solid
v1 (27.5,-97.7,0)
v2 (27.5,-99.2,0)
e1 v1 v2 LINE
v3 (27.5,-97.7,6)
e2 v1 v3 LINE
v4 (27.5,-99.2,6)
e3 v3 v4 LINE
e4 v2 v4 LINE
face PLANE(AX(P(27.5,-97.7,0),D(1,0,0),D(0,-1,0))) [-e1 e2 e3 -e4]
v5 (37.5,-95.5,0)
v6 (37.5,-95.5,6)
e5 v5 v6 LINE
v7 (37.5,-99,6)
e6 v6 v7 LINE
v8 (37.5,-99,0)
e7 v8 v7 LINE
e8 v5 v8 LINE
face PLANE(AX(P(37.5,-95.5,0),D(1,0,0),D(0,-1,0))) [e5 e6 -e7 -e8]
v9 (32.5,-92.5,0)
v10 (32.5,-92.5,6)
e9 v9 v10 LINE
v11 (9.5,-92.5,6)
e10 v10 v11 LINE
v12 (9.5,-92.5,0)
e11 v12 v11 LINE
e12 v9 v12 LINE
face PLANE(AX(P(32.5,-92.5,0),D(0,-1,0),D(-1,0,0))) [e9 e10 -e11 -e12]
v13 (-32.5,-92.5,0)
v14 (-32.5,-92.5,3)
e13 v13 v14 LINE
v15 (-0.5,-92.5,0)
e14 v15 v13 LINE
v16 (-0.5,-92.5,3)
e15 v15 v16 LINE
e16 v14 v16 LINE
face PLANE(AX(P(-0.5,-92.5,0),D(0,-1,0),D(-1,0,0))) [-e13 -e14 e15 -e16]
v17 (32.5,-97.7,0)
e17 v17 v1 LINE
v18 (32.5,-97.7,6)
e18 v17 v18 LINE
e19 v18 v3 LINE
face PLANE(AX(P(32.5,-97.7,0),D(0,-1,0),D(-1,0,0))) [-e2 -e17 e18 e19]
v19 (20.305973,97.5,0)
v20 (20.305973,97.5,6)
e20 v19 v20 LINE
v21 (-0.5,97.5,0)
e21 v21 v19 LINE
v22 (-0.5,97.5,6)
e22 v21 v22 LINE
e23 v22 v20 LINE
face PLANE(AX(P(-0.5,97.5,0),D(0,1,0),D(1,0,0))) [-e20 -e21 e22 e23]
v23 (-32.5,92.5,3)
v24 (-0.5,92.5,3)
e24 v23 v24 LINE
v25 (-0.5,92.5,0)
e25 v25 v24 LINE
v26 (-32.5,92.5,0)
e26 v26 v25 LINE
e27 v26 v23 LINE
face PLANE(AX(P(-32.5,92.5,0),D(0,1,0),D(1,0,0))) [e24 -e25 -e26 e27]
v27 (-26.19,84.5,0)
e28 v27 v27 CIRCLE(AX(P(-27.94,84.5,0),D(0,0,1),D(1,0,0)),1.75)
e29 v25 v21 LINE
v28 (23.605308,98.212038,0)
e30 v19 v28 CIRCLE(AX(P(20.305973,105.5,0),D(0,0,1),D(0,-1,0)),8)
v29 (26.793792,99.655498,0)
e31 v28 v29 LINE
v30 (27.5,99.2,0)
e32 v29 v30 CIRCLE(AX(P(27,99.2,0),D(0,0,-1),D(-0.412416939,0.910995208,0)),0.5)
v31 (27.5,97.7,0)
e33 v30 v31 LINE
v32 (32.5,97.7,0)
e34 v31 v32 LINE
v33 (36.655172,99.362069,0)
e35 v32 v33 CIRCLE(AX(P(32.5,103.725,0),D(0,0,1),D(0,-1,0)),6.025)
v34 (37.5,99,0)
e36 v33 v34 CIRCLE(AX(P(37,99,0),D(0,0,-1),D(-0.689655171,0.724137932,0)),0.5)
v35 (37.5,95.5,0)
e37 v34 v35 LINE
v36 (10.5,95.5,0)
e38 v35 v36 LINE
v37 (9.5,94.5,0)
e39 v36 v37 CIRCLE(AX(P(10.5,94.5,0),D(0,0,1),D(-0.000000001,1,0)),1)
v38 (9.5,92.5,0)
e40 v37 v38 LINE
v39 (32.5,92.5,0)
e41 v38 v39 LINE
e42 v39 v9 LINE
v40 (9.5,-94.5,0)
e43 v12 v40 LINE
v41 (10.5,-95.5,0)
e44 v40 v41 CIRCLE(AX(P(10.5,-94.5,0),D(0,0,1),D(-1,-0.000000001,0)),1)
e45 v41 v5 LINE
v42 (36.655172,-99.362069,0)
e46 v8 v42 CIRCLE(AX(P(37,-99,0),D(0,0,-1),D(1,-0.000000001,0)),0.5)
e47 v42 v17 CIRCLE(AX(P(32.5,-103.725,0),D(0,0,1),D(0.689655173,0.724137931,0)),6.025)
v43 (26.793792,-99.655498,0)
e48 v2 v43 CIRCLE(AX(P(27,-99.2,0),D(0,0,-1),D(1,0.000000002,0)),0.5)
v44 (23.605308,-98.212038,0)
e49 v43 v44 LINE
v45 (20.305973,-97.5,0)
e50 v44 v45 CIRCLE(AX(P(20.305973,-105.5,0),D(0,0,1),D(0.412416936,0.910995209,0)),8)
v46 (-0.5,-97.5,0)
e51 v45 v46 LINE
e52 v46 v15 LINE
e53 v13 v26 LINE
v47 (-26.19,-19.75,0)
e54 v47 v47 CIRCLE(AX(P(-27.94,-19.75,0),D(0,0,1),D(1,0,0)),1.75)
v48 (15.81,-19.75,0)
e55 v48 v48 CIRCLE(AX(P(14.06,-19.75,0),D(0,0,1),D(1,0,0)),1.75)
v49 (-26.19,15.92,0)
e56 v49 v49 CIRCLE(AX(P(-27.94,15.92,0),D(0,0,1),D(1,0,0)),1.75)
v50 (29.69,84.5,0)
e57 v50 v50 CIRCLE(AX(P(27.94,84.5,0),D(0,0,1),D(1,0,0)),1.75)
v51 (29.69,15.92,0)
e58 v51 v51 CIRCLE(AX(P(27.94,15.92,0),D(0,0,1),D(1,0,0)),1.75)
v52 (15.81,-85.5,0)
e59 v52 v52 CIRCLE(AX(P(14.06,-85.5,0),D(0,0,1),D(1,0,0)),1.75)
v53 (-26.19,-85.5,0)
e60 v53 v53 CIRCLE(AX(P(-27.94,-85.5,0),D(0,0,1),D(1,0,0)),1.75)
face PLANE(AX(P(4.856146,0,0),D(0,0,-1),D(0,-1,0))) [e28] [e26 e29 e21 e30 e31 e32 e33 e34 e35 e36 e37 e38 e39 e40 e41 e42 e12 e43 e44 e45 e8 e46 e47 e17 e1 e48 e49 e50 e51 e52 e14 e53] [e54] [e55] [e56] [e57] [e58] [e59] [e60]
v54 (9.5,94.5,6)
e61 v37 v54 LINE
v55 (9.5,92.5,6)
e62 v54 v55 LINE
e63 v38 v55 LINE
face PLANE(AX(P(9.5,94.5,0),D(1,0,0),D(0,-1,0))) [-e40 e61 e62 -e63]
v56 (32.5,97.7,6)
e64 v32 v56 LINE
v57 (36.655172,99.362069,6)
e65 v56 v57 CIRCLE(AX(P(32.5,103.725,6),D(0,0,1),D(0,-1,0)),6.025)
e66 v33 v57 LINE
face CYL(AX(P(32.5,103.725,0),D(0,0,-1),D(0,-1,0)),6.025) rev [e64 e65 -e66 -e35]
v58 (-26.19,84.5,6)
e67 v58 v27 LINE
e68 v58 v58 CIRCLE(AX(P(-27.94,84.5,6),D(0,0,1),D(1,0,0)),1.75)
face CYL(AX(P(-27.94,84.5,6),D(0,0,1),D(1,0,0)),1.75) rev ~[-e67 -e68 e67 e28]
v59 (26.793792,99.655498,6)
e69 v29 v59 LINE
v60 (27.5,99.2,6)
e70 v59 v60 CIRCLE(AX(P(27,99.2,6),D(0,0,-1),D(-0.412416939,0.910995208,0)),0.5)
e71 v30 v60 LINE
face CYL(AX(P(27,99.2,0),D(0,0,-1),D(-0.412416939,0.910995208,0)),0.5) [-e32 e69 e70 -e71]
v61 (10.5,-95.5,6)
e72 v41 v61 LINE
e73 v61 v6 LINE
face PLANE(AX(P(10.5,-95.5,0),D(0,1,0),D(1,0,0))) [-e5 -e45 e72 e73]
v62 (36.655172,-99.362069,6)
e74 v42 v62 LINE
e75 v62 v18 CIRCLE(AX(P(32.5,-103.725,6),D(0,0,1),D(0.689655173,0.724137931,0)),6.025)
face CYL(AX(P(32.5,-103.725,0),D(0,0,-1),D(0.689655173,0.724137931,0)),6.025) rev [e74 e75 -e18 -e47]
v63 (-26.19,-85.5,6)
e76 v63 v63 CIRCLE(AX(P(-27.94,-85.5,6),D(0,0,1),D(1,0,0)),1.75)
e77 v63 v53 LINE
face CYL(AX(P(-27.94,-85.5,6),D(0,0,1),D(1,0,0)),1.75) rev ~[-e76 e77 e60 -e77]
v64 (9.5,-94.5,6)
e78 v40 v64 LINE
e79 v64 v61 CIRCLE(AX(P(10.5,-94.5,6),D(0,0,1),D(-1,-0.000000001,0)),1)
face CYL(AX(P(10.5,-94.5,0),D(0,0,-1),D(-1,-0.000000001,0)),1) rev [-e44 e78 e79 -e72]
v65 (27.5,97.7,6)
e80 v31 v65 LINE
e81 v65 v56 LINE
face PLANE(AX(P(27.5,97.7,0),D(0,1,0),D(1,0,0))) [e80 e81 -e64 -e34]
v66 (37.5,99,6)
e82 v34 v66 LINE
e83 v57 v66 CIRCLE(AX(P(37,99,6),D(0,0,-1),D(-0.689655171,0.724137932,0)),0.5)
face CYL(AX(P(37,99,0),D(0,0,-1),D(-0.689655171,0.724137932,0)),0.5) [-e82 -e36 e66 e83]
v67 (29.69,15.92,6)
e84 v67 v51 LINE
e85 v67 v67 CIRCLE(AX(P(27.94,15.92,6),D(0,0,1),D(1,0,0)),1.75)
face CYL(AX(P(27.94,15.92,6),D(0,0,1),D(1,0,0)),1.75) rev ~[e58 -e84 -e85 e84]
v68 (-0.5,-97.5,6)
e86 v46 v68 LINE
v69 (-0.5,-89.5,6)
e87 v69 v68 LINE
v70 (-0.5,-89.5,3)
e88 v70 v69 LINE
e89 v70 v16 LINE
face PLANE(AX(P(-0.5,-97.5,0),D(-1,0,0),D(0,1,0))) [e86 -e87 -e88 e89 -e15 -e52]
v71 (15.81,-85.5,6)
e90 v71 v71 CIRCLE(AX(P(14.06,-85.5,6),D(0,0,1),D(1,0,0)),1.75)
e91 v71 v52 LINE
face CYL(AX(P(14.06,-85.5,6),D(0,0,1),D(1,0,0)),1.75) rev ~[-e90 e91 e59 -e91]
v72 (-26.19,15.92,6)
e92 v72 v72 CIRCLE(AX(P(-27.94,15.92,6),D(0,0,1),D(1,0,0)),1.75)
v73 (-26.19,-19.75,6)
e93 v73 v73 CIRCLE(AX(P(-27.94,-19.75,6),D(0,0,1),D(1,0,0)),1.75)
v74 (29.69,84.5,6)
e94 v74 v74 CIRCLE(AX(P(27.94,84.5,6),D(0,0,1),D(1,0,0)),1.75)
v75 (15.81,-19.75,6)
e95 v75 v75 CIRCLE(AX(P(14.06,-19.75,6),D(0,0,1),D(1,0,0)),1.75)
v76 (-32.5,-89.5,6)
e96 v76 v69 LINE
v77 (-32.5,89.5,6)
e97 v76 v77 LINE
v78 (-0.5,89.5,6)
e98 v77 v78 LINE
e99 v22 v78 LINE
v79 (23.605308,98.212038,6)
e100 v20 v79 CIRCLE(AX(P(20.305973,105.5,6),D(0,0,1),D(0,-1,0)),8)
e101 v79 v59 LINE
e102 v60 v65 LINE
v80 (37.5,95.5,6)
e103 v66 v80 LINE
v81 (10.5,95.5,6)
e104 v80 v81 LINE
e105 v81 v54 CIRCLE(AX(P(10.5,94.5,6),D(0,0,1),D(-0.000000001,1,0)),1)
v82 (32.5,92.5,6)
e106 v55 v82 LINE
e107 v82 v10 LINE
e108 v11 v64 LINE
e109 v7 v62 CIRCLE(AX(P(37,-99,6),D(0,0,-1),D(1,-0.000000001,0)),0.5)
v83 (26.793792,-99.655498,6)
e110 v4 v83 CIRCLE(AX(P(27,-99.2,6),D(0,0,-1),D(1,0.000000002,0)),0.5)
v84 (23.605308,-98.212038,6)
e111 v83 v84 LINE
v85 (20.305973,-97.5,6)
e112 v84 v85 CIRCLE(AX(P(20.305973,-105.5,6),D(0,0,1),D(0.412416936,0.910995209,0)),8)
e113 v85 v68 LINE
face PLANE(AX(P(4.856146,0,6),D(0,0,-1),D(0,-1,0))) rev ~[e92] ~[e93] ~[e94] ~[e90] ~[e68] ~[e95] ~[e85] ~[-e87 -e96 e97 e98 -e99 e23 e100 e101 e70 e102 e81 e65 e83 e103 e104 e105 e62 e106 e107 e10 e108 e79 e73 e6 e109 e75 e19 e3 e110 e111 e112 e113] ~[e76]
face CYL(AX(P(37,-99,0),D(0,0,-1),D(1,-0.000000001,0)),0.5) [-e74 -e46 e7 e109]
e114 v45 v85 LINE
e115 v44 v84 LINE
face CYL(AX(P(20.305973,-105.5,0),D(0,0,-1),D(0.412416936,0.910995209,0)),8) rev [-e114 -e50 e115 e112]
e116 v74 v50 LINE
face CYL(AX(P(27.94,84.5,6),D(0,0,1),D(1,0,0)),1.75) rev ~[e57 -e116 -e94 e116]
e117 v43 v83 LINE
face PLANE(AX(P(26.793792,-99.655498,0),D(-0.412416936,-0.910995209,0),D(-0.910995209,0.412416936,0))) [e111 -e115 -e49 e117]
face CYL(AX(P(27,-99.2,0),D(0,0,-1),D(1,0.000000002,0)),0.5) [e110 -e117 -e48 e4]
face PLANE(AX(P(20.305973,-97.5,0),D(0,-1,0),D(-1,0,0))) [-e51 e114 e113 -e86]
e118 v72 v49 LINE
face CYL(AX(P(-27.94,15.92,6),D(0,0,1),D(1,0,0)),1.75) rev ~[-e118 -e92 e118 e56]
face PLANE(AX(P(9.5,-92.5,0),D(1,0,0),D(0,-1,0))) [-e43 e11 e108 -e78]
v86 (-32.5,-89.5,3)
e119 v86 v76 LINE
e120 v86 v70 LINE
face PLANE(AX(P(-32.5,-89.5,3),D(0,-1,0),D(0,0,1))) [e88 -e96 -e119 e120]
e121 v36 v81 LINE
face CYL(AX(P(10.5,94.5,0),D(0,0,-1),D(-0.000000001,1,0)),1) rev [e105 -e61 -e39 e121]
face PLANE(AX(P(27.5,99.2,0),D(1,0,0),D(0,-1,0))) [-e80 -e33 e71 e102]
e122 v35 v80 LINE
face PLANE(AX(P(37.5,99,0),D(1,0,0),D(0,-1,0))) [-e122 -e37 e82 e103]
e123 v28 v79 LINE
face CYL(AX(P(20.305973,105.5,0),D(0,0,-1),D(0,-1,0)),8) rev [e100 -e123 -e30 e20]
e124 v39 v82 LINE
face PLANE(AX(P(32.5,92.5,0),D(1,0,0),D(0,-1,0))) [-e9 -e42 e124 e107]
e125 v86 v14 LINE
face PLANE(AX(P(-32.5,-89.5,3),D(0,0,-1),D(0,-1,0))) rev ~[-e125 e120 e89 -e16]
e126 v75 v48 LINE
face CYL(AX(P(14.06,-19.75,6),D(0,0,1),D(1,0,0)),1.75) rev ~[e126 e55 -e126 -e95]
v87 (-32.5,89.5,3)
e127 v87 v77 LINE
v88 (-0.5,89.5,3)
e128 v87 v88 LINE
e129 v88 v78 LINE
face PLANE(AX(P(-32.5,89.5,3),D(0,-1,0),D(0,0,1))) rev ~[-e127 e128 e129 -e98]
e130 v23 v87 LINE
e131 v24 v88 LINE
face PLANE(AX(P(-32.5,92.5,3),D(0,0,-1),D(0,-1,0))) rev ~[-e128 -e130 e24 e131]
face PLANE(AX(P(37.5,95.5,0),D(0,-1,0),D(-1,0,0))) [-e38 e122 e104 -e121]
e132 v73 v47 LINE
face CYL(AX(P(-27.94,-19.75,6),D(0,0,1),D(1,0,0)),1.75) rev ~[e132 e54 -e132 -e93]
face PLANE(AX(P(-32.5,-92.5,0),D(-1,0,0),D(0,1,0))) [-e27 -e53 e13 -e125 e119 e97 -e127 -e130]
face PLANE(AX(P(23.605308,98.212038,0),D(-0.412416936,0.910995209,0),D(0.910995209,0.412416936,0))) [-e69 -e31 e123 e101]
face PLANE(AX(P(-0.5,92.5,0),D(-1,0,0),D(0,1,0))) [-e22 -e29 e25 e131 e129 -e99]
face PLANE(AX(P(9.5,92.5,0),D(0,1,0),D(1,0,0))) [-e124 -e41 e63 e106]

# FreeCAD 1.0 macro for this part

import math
import FreeCAD as App
import Part
import Sketcher

V = App.Vector
Q = App.Units.Quantity

doc = App.newDocument("Part")
body = doc.addObject("PartDesign::Body", "Body")

sketch1 = body.newObject("Sketcher::SketchObject", "Sketch")
sketch1.AttachmentSupport = (doc.getObject("XY_Plane"), [""])
sketch1.MapMode = "FlatFace"
sketch1.addGeometry([
    Part.LineSegment(V(9.5, -94.5, 0), V(9.5, -92.5, 0)),
    Part.LineSegment(V(9.5, -92.5, 0), V(32.5, -92.5, 0)),
    Part.LineSegment(V(32.5, -92.5, 0), V(32.5, 92.5, 0)),
    Part.LineSegment(V(32.5, 92.5, 0), V(9.5, 92.5, 0)),
    Part.LineSegment(V(9.5, 92.5, 0), V(9.5, 94.5, 0)),
    Part.ArcOfCircle(Part.Circle(V(10.5, 94.5, 0), V(0, 0, 1), 1), math.radians(90), math.radians(180)),
    Part.LineSegment(V(10.5, 95.5, 0), V(37.5, 95.5, 0)),
    Part.LineSegment(V(37.5, 95.5, 0), V(37.5, 99, 0)),
    Part.ArcOfCircle(Part.Circle(V(37, 99, 0), V(0, 0, 1), 0.5), math.radians(0), math.radians(134)),
    Part.ArcOfCircle(Part.Circle(V(32.5, 103.72, 0), V(0, 0, 1), 6.02), math.radians(-90), math.radians(-46)),
    Part.LineSegment(V(32.5, 97.7, 0), V(27.5, 97.7, 0)),
    Part.LineSegment(V(27.5, 97.7, 0), V(27.5, 99.2, 0)),
    Part.ArcOfCircle(Part.Circle(V(27, 99.2, 0), V(0, 0, 1), 0.5), math.radians(0), math.radians(114)),
    Part.LineSegment(V(26.79, 99.66, 0), V(23.61, 98.21, 0)),
    Part.ArcOfCircle(Part.Circle(V(20.31, 105.5, 0), V(0, 0, 1), 8), math.radians(-90), math.radians(-66)),
    Part.LineSegment(V(20.31, 97.5, 0), V(-0.5, 97.5, 0)),
    Part.LineSegment(V(-0.5, 97.5, 0), V(-0.5, 92.5, 0)),
    Part.LineSegment(V(-0.5, 92.5, 0), V(-32.5, 92.5, 0)),
    Part.LineSegment(V(-32.5, 92.5, 0), V(-32.5, -92.5, 0)),
    Part.LineSegment(V(-32.5, -92.5, 0), V(-0.5, -92.5, 0)),
    Part.LineSegment(V(-0.5, -92.5, 0), V(-0.5, -97.5, 0)),
    Part.LineSegment(V(-0.5, -97.5, 0), V(20.31, -97.5, 0)),
    Part.ArcOfCircle(Part.Circle(V(20.31, -105.5, 0), V(0, 0, 1), 8), math.radians(66), math.radians(90)),
    Part.LineSegment(V(23.61, -98.21, 0), V(26.79, -99.66, 0)),
    Part.ArcOfCircle(Part.Circle(V(27, -99.2, 0), V(0, 0, 1), 0.5), math.radians(-114), math.radians(0)),
    Part.LineSegment(V(27.5, -99.2, 0), V(27.5, -97.7, 0)),
    Part.LineSegment(V(27.5, -97.7, 0), V(32.5, -97.7, 0)),
    Part.ArcOfCircle(Part.Circle(V(32.5, -103.72, 0), V(0, 0, 1), 6.02), math.radians(46), math.radians(90)),
    Part.ArcOfCircle(Part.Circle(V(37, -99, 0), V(0, 0, 1), 0.5), math.radians(-134), math.radians(0)),
    Part.LineSegment(V(37.5, -99, 0), V(37.5, -95.5, 0)),
    Part.LineSegment(V(37.5, -95.5, 0), V(10.5, -95.5, 0)),
    Part.ArcOfCircle(Part.Circle(V(10.5, -94.5, 0), V(0, 0, 1), 1), math.radians(-180), math.radians(-90)),
], False)
sketch1.addConstraint([
    Sketcher.Constraint("Coincident", 0, 2, 1, 1),
    Sketcher.Constraint("Coincident", 1, 2, 2, 1),
    Sketcher.Constraint("Coincident", 2, 2, 3, 1),
    Sketcher.Constraint("Coincident", 3, 2, 4, 1),
    Sketcher.Constraint("Tangent", 4, 2, 5, 2),
    Sketcher.Constraint("Tangent", 5, 1, 6, 1),
    Sketcher.Constraint("Coincident", 6, 2, 7, 1),
    Sketcher.Constraint("Tangent", 7, 2, 8, 1),
    Sketcher.Constraint("Tangent", 8, 2, 9, 2),
    Sketcher.Constraint("Tangent", 9, 1, 10, 1),
    Sketcher.Constraint("Coincident", 10, 2, 11, 1),
    Sketcher.Constraint("Tangent", 11, 2, 12, 1),
    Sketcher.Constraint("Tangent", 12, 2, 13, 1),
    Sketcher.Constraint("Tangent", 13, 2, 14, 2),
    Sketcher.Constraint("Tangent", 14, 1, 15, 1),
    Sketcher.Constraint("Coincident", 15, 2, 16, 1),
    Sketcher.Constraint("Coincident", 16, 2, 17, 1),
    Sketcher.Constraint("Coincident", 17, 2, 18, 1),
    Sketcher.Constraint("Coincident", 18, 2, 19, 1),
    Sketcher.Constraint("Coincident", 19, 2, 20, 1),
    Sketcher.Constraint("Coincident", 20, 2, 21, 1),
    Sketcher.Constraint("Tangent", 21, 2, 22, 2),
    Sketcher.Constraint("Tangent", 22, 1, 23, 1),
    Sketcher.Constraint("Tangent", 23, 2, 24, 1),
    Sketcher.Constraint("Tangent", 24, 2, 25, 1),
    Sketcher.Constraint("Coincident", 25, 2, 26, 1),
    Sketcher.Constraint("Tangent", 26, 2, 27, 2),
    Sketcher.Constraint("Tangent", 27, 1, 28, 1),
    Sketcher.Constraint("Tangent", 28, 2, 29, 1),
    Sketcher.Constraint("Coincident", 29, 2, 30, 1),
    Sketcher.Constraint("Tangent", 30, 2, 31, 2),
    Sketcher.Constraint("Tangent", 31, 1, 0, 1),
    Sketcher.Constraint("Vertical", 0),
    Sketcher.Constraint("Horizontal", 1),
    Sketcher.Constraint("Vertical", 2),
    Sketcher.Constraint("Horizontal", 3),
    Sketcher.Constraint("Vertical", 4),
    Sketcher.Constraint("Horizontal", 6),
    Sketcher.Constraint("Vertical", 7),
    Sketcher.Constraint("Horizontal", 10),
    Sketcher.Constraint("Vertical", 11),
    Sketcher.Constraint("Horizontal", 15),
    Sketcher.Constraint("Vertical", 16),
    Sketcher.Constraint("Horizontal", 17),
    Sketcher.Constraint("Vertical", 18),
    Sketcher.Constraint("Horizontal", 19),
    Sketcher.Constraint("Vertical", 20),
    Sketcher.Constraint("Horizontal", 21),
    Sketcher.Constraint("Vertical", 25),
    Sketcher.Constraint("Horizontal", 26),
    Sketcher.Constraint("Vertical", 29),
    Sketcher.Constraint("Horizontal", 30),
    Sketcher.Constraint("Equal", 8, 12),
    Sketcher.Constraint("Equal", 14, 22),
    Sketcher.Constraint("Equal", 12, 24),
    Sketcher.Constraint("Equal", 9, 27),
    Sketcher.Constraint("Equal", 24, 28),
    Sketcher.Constraint("Equal", 5, 31),
    Sketcher.Constraint("Symmetric", 1, 2, 17, 2, -1, 1),
    Sketcher.Constraint("Symmetric", 14, 3, 22, 3, -1),
    Sketcher.Constraint("Symmetric", 12, 3, 24, 3, -1),
    Sketcher.Constraint("Symmetric", 9, 3, 27, 3, -1),
    Sketcher.Constraint("Symmetric", 5, 3, 31, 3, -1),
    Sketcher.Constraint("Symmetric", 16, 2, 19, 2, -1),
    Sketcher.Constraint("Horizontal", 3, 2, 16, 2),
    Sketcher.Constraint("Vertical", 8, 3, 28, 3),
    Sketcher.Constraint("Vertical", 27, 3, 1, 2),
    Sketcher.Constraint("Equal", 26, 16),
    Sketcher.Constraint("Radius", 5, Q("1 mm")),
    Sketcher.Constraint("Radius", 14, Q("8 mm")),
    Sketcher.Constraint("Radius", 8, Q("0.5 mm")),
    Sketcher.Constraint("DistanceX", 1, 1, 1, 2, Q("23 mm")),
    Sketcher.Constraint("DistanceX", 6, 1, 6, 2, Q("27 mm")),
    Sketcher.Constraint("DistanceX", 10, 2, 10, 1, Q("5 mm")),
    Sketcher.Constraint("DistanceX", 17, 2, 17, 1, Q("32 mm")),
    Sketcher.Constraint("DistanceY", 0, 1, 0, 2, Q("2 mm")),
    Sketcher.Constraint("DistanceY", 2, 1, 2, 2, Q("185 mm")),
    Sketcher.Constraint("DistanceY", 7, 1, 7, 2, Q("3.5 mm")),
    Sketcher.Constraint("DistanceY", 11, 1, 11, 2, Q("1.5 mm")),
    Sketcher.Constraint("DistanceX", -1, 1, 8, 3, Q("37 mm")),
    Sketcher.Constraint("Radius", 9, Q("6.025 mm")),
    Sketcher.Constraint("Distance", 13, Q("3.5 mm")),
])
pad1 = body.newObject("PartDesign::Pad", "Pad")
pad1.Profile = sketch1
pad1.Length = 6

sketch2 = body.newObject("Sketcher::SketchObject", "Sketch001")
sketch2.AttachmentSupport = (doc.getObject("YZ_Plane"), [""])
sketch2.MapMode = "FlatFace"
sketch2.AttachmentOffset = App.Placement(V(0, 0, -32.5), App.Rotation())
sketch2.addGeometry([
    Part.LineSegment(V(92.5, 6, 0), V(92.5, 3, 0)),
    Part.LineSegment(V(92.5, 3, 0), V(89.5, 3, 0)),
    Part.LineSegment(V(89.5, 3, 0), V(89.5, 6, 0)),
    Part.LineSegment(V(89.5, 6, 0), V(92.5, 6, 0)),
    Part.LineSegment(V(-89.5, 6, 0), V(-89.5, 3, 0)),
    Part.LineSegment(V(-89.5, 3, 0), V(-92.5, 3, 0)),
    Part.LineSegment(V(-92.5, 3, 0), V(-92.5, 6, 0)),
    Part.LineSegment(V(-92.5, 6, 0), V(-89.5, 6, 0)),
], False)
sketch2.addConstraint([
    Sketcher.Constraint("Coincident", 0, 2, 1, 1),
    Sketcher.Constraint("Coincident", 1, 2, 2, 1),
    Sketcher.Constraint("Coincident", 2, 2, 3, 1),
    Sketcher.Constraint("Coincident", 3, 2, 0, 1),
    Sketcher.Constraint("Coincident", 4, 2, 5, 1),
    Sketcher.Constraint("Coincident", 5, 2, 6, 1),
    Sketcher.Constraint("Coincident", 6, 2, 7, 1),
    Sketcher.Constraint("Coincident", 7, 2, 4, 1),
    Sketcher.Constraint("Vertical", 0),
    Sketcher.Constraint("Horizontal", 1),
    Sketcher.Constraint("Vertical", 2),
    Sketcher.Constraint("Horizontal", 3),
    Sketcher.Constraint("Vertical", 4),
    Sketcher.Constraint("Horizontal", 5),
    Sketcher.Constraint("Vertical", 6),
    Sketcher.Constraint("Horizontal", 7),
    Sketcher.Constraint("Symmetric", 1, 2, 4, 2, -2),
    Sketcher.Constraint("Symmetric", 3, 2, 6, 2, -2),
    Sketcher.Constraint("Equal", 7, 0),
    Sketcher.Constraint("DistanceX", 1, 2, 1, 1, Q("3 mm")),
    Sketcher.Constraint("DistanceY", -1, 1, 0, 2, Q("3 mm")),
    Sketcher.Constraint("DistanceX", 4, 2, 1, 2, Q("179 mm")),
])
pocket1 = body.newObject("PartDesign::Pocket", "Pocket")
pocket1.Profile = sketch2
pocket1.Length = 32
pocket1.Reversed = True

sketch3 = body.newObject("Sketcher::SketchObject", "Sketch002")
sketch3.AttachmentSupport = (doc.getObject("XY_Plane"), [""])
sketch3.MapMode = "FlatFace"
sketch3.AttachmentOffset = App.Placement(V(0, 0, 6), App.Rotation())
sketch3.addGeometry([
    Part.Circle(V(-27.9, 84.5, 0), V(0, 0, 1), 1.8),
    Part.Circle(V(-27.9, 15.9, 0), V(0, 0, 1), 1.8),
    Part.Circle(V(27.9, 15.9, 0), V(0, 0, 1), 1.8),
    Part.Circle(V(27.9, 84.5, 0), V(0, 0, 1), 1.8),
    Part.Circle(V(-27.9, -19.8, 0), V(0, 0, 1), 1.8),
    Part.Circle(V(-27.9, -85.5, 0), V(0, 0, 1), 1.8),
    Part.Circle(V(14.1, -85.5, 0), V(0, 0, 1), 1.8),
    Part.Circle(V(14.1, -19.8, 0), V(0, 0, 1), 1.8),
], False)
sketch3.addConstraint([
    Sketcher.Constraint("Equal", 0, 1),
    Sketcher.Constraint("Equal", 1, 2),
    Sketcher.Constraint("Equal", 2, 3),
    Sketcher.Constraint("Equal", 3, 4),
    Sketcher.Constraint("Equal", 4, 5),
    Sketcher.Constraint("Equal", 5, 6),
    Sketcher.Constraint("Equal", 6, 7),
    Sketcher.Constraint("Symmetric", 1, 3, 2, 3, -2),
    Sketcher.Constraint("Symmetric", 0, 3, 3, 3, -2),
    Sketcher.Constraint("Horizontal", 5, 3, 6, 3),
    Sketcher.Constraint("Horizontal", 4, 3, 7, 3),
    Sketcher.Constraint("Vertical", 0, 3, 1, 3),
    Sketcher.Constraint("Vertical", 1, 3, 4, 3),
    Sketcher.Constraint("Vertical", 4, 3, 5, 3),
    Sketcher.Constraint("Vertical", 6, 3, 7, 3),
    Sketcher.Constraint("Diameter", 0, Q("3.5 mm")),
    Sketcher.Constraint("DistanceY", 5, 3, 0, 3, Q("170 mm")),
    Sketcher.Constraint("DistanceX", 5, 3, 6, 3, Q("42 mm")),
    Sketcher.Constraint("DistanceY", -1, 1, 0, 3, Q("84.5 mm")),
    Sketcher.Constraint("DistanceX", 0, 3, -1, 1, Q("27.94 mm")),
    Sketcher.Constraint("DistanceY", -1, 1, 1, 3, Q("15.92 mm")),
    Sketcher.Constraint("DistanceY", 4, 3, -1, 1, Q("19.75 mm")),
])
pocket2 = body.newObject("PartDesign::Pocket", "Pocket001")
pocket2.Profile = sketch3
pocket2.Length = 10

doc.recompute()
